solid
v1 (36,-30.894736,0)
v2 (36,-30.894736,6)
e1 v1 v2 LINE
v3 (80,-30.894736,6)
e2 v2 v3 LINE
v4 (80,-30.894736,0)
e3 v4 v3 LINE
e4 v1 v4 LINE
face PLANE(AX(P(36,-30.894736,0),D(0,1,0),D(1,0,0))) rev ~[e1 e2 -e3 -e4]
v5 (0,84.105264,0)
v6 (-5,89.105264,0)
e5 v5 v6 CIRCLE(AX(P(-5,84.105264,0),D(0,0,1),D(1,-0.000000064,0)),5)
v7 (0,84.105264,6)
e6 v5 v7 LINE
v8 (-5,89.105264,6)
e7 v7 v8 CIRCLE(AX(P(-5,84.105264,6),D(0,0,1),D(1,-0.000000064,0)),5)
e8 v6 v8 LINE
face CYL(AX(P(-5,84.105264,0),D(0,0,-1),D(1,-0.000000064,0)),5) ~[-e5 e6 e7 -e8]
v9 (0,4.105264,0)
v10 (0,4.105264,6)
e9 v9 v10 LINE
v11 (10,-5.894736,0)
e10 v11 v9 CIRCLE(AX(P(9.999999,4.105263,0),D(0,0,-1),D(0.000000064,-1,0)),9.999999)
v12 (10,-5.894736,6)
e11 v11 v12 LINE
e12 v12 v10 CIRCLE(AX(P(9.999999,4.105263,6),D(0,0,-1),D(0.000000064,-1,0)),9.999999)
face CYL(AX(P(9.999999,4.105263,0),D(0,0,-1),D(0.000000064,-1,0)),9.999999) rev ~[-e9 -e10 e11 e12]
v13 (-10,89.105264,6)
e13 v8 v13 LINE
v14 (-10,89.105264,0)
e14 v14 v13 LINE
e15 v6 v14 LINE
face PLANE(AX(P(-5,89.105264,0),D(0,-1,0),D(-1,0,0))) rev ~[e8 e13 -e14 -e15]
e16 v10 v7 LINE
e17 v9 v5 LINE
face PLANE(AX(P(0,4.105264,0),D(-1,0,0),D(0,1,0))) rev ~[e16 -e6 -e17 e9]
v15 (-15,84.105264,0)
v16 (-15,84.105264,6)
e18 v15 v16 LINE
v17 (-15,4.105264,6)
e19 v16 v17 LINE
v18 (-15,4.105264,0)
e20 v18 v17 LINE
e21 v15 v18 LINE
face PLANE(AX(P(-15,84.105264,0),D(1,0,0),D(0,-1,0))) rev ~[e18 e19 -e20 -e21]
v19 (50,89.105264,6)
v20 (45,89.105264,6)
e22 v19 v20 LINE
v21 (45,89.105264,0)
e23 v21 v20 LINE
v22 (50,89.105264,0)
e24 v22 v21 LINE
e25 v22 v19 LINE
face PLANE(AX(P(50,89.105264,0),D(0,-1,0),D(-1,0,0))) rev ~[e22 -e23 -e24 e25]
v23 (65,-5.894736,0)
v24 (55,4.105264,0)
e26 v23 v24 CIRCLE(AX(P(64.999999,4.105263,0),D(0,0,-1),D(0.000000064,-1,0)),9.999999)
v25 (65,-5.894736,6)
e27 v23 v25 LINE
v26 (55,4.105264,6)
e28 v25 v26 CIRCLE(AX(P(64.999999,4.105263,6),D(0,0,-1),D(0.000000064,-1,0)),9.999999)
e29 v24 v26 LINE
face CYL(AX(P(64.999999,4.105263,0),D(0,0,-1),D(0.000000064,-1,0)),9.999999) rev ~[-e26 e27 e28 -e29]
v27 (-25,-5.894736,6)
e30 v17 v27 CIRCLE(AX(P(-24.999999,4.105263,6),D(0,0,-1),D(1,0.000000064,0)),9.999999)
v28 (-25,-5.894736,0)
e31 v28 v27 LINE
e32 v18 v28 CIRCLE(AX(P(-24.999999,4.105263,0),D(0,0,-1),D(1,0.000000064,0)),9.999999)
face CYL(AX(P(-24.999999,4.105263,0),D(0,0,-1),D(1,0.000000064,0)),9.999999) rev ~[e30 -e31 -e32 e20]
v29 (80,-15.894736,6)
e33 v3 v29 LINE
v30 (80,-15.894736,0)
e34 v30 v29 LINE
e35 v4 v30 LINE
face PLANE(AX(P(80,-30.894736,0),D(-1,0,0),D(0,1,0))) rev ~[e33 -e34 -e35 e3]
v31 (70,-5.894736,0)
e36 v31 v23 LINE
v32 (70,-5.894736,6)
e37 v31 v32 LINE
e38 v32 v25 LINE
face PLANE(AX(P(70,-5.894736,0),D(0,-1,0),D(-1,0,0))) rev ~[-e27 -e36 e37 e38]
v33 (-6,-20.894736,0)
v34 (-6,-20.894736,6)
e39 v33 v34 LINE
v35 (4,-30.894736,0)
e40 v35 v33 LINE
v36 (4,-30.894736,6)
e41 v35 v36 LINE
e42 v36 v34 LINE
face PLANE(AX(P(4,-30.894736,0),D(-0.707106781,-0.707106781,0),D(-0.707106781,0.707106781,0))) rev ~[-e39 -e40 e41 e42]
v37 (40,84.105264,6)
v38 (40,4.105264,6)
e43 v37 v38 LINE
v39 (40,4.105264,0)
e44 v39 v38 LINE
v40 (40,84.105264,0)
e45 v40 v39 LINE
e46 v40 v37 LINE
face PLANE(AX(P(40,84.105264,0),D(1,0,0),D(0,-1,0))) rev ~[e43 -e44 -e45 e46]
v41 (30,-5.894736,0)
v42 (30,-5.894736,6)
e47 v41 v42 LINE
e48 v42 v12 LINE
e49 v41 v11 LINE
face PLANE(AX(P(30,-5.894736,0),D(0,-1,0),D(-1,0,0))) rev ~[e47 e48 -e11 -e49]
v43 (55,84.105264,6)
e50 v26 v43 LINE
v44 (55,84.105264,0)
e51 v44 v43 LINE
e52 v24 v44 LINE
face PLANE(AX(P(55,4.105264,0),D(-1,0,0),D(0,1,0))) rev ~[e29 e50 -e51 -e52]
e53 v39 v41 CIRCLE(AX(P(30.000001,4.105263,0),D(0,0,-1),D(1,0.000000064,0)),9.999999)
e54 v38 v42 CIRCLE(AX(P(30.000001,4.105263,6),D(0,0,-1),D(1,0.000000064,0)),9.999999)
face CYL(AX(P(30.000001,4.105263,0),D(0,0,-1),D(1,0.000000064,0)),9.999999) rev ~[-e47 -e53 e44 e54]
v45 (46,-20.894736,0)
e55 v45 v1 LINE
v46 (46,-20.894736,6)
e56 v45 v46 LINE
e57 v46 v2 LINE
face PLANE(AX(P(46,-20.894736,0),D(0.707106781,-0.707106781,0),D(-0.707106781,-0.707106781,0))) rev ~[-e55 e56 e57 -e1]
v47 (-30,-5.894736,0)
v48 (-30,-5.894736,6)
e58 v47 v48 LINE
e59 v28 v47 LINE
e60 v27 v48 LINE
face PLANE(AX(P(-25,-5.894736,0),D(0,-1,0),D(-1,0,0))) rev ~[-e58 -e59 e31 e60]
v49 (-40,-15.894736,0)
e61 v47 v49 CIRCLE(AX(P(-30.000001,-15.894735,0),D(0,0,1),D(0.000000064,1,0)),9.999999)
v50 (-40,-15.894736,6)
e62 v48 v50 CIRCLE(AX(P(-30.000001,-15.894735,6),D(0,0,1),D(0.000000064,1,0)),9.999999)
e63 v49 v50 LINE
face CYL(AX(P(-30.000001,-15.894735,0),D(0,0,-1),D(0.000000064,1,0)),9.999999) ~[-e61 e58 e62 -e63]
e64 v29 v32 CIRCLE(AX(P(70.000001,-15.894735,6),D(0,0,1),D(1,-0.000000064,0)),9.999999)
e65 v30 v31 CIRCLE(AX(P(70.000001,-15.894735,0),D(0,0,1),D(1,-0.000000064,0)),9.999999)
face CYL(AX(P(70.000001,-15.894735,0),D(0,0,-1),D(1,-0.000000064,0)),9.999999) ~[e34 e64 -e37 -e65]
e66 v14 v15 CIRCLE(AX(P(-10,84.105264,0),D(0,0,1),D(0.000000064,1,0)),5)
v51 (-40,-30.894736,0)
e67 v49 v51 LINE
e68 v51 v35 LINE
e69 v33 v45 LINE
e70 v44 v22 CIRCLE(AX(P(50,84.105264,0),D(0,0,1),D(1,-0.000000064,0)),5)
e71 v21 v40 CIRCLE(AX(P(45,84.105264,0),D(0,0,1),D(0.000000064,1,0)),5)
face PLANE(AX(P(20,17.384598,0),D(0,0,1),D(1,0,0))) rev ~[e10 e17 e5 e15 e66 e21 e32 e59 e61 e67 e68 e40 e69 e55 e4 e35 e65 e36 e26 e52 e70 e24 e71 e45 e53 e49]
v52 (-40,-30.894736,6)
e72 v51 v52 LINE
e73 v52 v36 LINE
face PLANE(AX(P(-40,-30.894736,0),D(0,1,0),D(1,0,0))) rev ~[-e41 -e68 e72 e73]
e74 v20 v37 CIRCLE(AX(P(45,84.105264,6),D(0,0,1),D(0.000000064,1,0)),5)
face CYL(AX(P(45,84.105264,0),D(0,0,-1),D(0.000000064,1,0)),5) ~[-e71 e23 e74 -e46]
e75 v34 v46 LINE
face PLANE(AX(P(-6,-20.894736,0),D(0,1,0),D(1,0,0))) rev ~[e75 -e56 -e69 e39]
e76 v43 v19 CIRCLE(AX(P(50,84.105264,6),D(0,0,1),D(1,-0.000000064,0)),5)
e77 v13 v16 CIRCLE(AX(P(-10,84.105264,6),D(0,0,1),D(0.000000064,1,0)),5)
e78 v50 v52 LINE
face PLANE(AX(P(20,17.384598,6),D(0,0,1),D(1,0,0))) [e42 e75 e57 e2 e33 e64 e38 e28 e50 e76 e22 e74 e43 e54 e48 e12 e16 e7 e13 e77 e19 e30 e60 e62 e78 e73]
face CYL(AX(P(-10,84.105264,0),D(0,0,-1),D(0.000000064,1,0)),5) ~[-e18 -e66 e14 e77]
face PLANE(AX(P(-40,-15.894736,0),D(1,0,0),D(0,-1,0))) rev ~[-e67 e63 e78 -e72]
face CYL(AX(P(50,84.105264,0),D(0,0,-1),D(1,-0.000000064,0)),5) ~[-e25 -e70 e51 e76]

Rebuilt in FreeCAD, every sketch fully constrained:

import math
import FreeCAD as App
import Part
import Sketcher
Q = App.Units.Quantity

doc = App.newDocument("Part")
body = doc.addObject("PartDesign::Body", "Body")

# Sketch on XY plane
sketch1 = doc.addObject("Sketcher::SketchObject", "Sketch")
body.addObject(sketch1)
sketch1.AttachmentSupport = (doc.XY_Plane, [""])
sketch1.MapMode = "FlatFace"
sketch1.addGeometry(Part.LineSegment(App.Vector(36, -30.894736, 0), App.Vector(80, -30.894736, 0)), False)
sketch1.addGeometry(Part.LineSegment(App.Vector(80, -30.894736, 0), App.Vector(80, -15.894736, 0)), False)
sketch1.addGeometry(Part.ArcOfCircle(Part.Circle(App.Vector(70.000001, -15.894735, 0), App.Vector(0, 0, 1), 9.999999), math.radians(-0.000004), math.radians(90.000004)), False)
sketch1.addGeometry(Part.LineSegment(App.Vector(70, -5.894736, 0), App.Vector(65, -5.894736, 0)), False)
sketch1.addGeometry(Part.ArcOfCircle(Part.Circle(App.Vector(64.999999, 4.105263, 0), App.Vector(0, 0, 1), 9.999999), math.radians(179.999996), math.radians(270.000004)), False)
sketch1.addGeometry(Part.LineSegment(App.Vector(55, 4.105264, 0), App.Vector(55, 84.105264, 0)), False)
sketch1.addGeometry(Part.ArcOfCircle(Part.Circle(App.Vector(50, 84.105264, 0), App.Vector(0, 0, 1), 5), math.radians(-0.000004), math.radians(90.000004)), False)
sketch1.addGeometry(Part.LineSegment(App.Vector(50, 89.105264, 0), App.Vector(45, 89.105264, 0)), False)
sketch1.addGeometry(Part.ArcOfCircle(Part.Circle(App.Vector(45, 84.105264, 0), App.Vector(0, 0, 1), 5), math.radians(89.999996), math.radians(180.000004)), False)
sketch1.addGeometry(Part.LineSegment(App.Vector(40, 84.105264, 0), App.Vector(40, 4.105264, 0)), False)
sketch1.addGeometry(Part.ArcOfCircle(Part.Circle(App.Vector(30.000001, 4.105263, 0), App.Vector(0, 0, 1), 9.999999), math.radians(-90.000004), math.radians(0.000004)), False)
sketch1.addGeometry(Part.LineSegment(App.Vector(30, -5.894736, 0), App.Vector(10, -5.894736, 0)), False)
sketch1.addGeometry(Part.ArcOfCircle(Part.Circle(App.Vector(9.999999, 4.105263, 0), App.Vector(0, 0, 1), 9.999999), math.radians(179.999996), math.radians(270.000004)), False)
sketch1.addGeometry(Part.LineSegment(App.Vector(0, 4.105264, 0), App.Vector(0, 84.105264, 0)), False)
sketch1.addGeometry(Part.ArcOfCircle(Part.Circle(App.Vector(-5, 84.105264, 0), App.Vector(0, 0, 1), 5), math.radians(-0.000004), math.radians(90.000004)), False)
sketch1.addGeometry(Part.LineSegment(App.Vector(-5, 89.105264, 0), App.Vector(-10, 89.105264, 0)), False)
sketch1.addGeometry(Part.ArcOfCircle(Part.Circle(App.Vector(-10, 84.105264, 0), App.Vector(0, 0, 1), 5), math.radians(89.999996), math.radians(180.000004)), False)
sketch1.addGeometry(Part.LineSegment(App.Vector(-15, 84.105264, 0), App.Vector(-15, 4.105264, 0)), False)
sketch1.addGeometry(Part.ArcOfCircle(Part.Circle(App.Vector(-24.999999, 4.105263, 0), App.Vector(0, 0, 1), 9.999999), math.radians(-90.000004), math.radians(0.000004)), False)
sketch1.addGeometry(Part.LineSegment(App.Vector(-25, -5.894736, 0), App.Vector(-30, -5.894736, 0)), False)
sketch1.addGeometry(Part.ArcOfCircle(Part.Circle(App.Vector(-30.000001, -15.894735, 0), App.Vector(0, 0, 1), 9.999999), math.radians(89.999996), math.radians(180.000004)), False)
sketch1.addGeometry(Part.LineSegment(App.Vector(-40, -15.894736, 0), App.Vector(-40, -30.894736, 0)), False)
sketch1.addGeometry(Part.LineSegment(App.Vector(-40, -30.894736, 0), App.Vector(4, -30.894736, 0)), False)
sketch1.addGeometry(Part.LineSegment(App.Vector(4, -30.894736, 0), App.Vector(-6, -20.894736, 0)), False)
sketch1.addGeometry(Part.LineSegment(App.Vector(-6, -20.894736, 0), App.Vector(46, -20.894736, 0)), False)
sketch1.addGeometry(Part.LineSegment(App.Vector(46, -20.894736, 0), App.Vector(36, -30.894736, 0)), False)
sketch1.addConstraint(Sketcher.Constraint("Coincident", 0, 2, 1, 1))
sketch1.addConstraint(Sketcher.Constraint("Tangent", 1, 2, 2, 1))
sketch1.addConstraint(Sketcher.Constraint("Tangent", 2, 2, 3, 1))
sketch1.addConstraint(Sketcher.Constraint("Tangent", 3, 2, 4, 2))
sketch1.addConstraint(Sketcher.Constraint("Tangent", 4, 1, 5, 1))
sketch1.addConstraint(Sketcher.Constraint("Tangent", 5, 2, 6, 1))
sketch1.addConstraint(Sketcher.Constraint("Tangent", 6, 2, 7, 1))
sketch1.addConstraint(Sketcher.Constraint("Tangent", 7, 2, 8, 1))
sketch1.addConstraint(Sketcher.Constraint("Tangent", 8, 2, 9, 1))
sketch1.addConstraint(Sketcher.Constraint("Tangent", 9, 2, 10, 2))
sketch1.addConstraint(Sketcher.Constraint("Tangent", 10, 1, 11, 1))
sketch1.addConstraint(Sketcher.Constraint("Tangent", 11, 2, 12, 2))
sketch1.addConstraint(Sketcher.Constraint("Tangent", 12, 1, 13, 1))
sketch1.addConstraint(Sketcher.Constraint("Tangent", 13, 2, 14, 1))
sketch1.addConstraint(Sketcher.Constraint("Tangent", 14, 2, 15, 1))
sketch1.addConstraint(Sketcher.Constraint("Tangent", 15, 2, 16, 1))
sketch1.addConstraint(Sketcher.Constraint("Tangent", 16, 2, 17, 1))
sketch1.addConstraint(Sketcher.Constraint("Tangent", 17, 2, 18, 2))
sketch1.addConstraint(Sketcher.Constraint("Tangent", 18, 1, 19, 1))
sketch1.addConstraint(Sketcher.Constraint("Tangent", 19, 2, 20, 1))
sketch1.addConstraint(Sketcher.Constraint("Tangent", 20, 2, 21, 1))
sketch1.addConstraint(Sketcher.Constraint("Coincident", 21, 2, 22, 1))
sketch1.addConstraint(Sketcher.Constraint("Coincident", 22, 2, 23, 1))
sketch1.addConstraint(Sketcher.Constraint("Coincident", 23, 2, 24, 1))
sketch1.addConstraint(Sketcher.Constraint("Coincident", 24, 2, 25, 1))
sketch1.addConstraint(Sketcher.Constraint("Coincident", 25, 2, 0, 1))
sketch1.addConstraint(Sketcher.Constraint("Horizontal", 0))
sketch1.addConstraint(Sketcher.Constraint("Vertical", 1))
sketch1.addConstraint(Sketcher.Constraint("Horizontal", 3))
sketch1.addConstraint(Sketcher.Constraint("Vertical", 5))
sketch1.addConstraint(Sketcher.Constraint("Horizontal", 7))
sketch1.addConstraint(Sketcher.Constraint("Vertical", 9))
sketch1.addConstraint(Sketcher.Constraint("Horizontal", 11))
sketch1.addConstraint(Sketcher.Constraint("Vertical", 13))
sketch1.addConstraint(Sketcher.Constraint("Horizontal", 15))
sketch1.addConstraint(Sketcher.Constraint("Vertical", 17))
sketch1.addConstraint(Sketcher.Constraint("Horizontal", 19))
sketch1.addConstraint(Sketcher.Constraint("Vertical", 21))
sketch1.addConstraint(Sketcher.Constraint("Horizontal", 22))
sketch1.addConstraint(Sketcher.Constraint("Horizontal", 24))
sketch1.addConstraint(Sketcher.Constraint("Equal", 2, 4))
sketch1.addConstraint(Sketcher.Constraint("Equal", 6, 8))
sketch1.addConstraint(Sketcher.Constraint("Equal", 4, 10))
sketch1.addConstraint(Sketcher.Constraint("Equal", 10, 12))
sketch1.addConstraint(Sketcher.Constraint("Equal", 8, 14))
sketch1.addConstraint(Sketcher.Constraint("Equal", 14, 16))
sketch1.addConstraint(Sketcher.Constraint("Equal", 12, 18))
sketch1.addConstraint(Sketcher.Constraint("Equal", 18, 20))
sketch1.addConstraint(Sketcher.Constraint("Symmetric", 10, 1, 19, 2, -2))
sketch1.addConstraint(Sketcher.Constraint("PointOnObject", 12, 1, -2))
sketch1.addConstraint(Sketcher.Constraint("Perpendicular", 23, 25))
sketch1.addConstraint(Sketcher.Constraint("Horizontal", 4, 3, 10, 3))
sketch1.addConstraint(Sketcher.Constraint("Horizontal", 8, 3, 14, 3))
sketch1.addConstraint(Sketcher.Constraint("Horizontal", 0, 2, 21, 2))
sketch1.addConstraint(Sketcher.Constraint("Equal", 3, 7))
sketch1.addConstraint(Sketcher.Constraint("Equal", 7, 15))
sketch1.addConstraint(Sketcher.Constraint("Equal", 15, 19))
sketch1.addConstraint(Sketcher.Constraint("Equal", 0, 22))
sketch1.addConstraint(Sketcher.Constraint("Equal", 23, 25))
sketch1.addConstraint(Sketcher.Constraint("Radius", 2, Q("9.999999 mm")))
sketch1.addConstraint(Sketcher.Constraint("Radius", 6, Q("5 mm")))
sketch1.addConstraint(Sketcher.Constraint("DistanceX", 0, 1, 0, 2, Q("44 mm")))
sketch1.addConstraint(Sketcher.Constraint("DistanceX", 3, 2, 3, 1, Q("5 mm")))
sketch1.addConstraint(Sketcher.Constraint("DistanceX", 24, 1, 24, 2, Q("52 mm")))
sketch1.addConstraint(Sketcher.Constraint("DistanceY", 1, 1, 1, 2, Q("15 mm")))
sketch1.addConstraint(Sketcher.Constraint("DistanceY", 5, 1, 5, 2, Q("80 mm")))
sketch1.addConstraint(Sketcher.Constraint("DistanceY", 2, 3, -1, 1, Q("15.894735 mm")))
pad1 = doc.addObject("PartDesign::Pad", "Pad")
body.addObject(pad1)
pad1.Profile = sketch1
pad1.Length = 6

doc.recompute()
